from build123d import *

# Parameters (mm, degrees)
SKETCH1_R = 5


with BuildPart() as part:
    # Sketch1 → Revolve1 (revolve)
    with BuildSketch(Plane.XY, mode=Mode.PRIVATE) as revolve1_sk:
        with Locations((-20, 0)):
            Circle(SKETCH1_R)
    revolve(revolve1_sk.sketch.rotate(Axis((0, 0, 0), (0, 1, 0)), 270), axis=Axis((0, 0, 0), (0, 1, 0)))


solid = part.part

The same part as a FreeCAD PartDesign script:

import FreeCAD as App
import Part
import Sketcher
from FreeCAD import Vector

doc = App.newDocument("Part")
body = doc.addObject("PartDesign::Body", "Body")

# Sketch on XY plane
sketch1 = body.newObject("Sketcher::SketchObject", "Sketch")
sketch1.AttachmentSupport = (doc.getObject("XY_Plane"), [""])
sketch1.MapMode = "FlatFace"
sketch1.addGeometry(Part.Circle(Vector(-20, 0, 0), Vector(0, 0, 1), 5), False)
sketch1.addConstraint([
    Sketcher.Constraint("PointOnObject", 0, 3, -1),
    Sketcher.Constraint("Diameter", 0, 10.0),
    Sketcher.Constraint("DistanceX", 0, 3, -1, 1, 20.0),
])
revolution = body.newObject("PartDesign::Revolution", "Revolution")
revolution.Profile = sketch1
revolution.ReferenceAxis = (sketch1, ["V_Axis"])
revolution.Angle = 360

doc.recompute()
